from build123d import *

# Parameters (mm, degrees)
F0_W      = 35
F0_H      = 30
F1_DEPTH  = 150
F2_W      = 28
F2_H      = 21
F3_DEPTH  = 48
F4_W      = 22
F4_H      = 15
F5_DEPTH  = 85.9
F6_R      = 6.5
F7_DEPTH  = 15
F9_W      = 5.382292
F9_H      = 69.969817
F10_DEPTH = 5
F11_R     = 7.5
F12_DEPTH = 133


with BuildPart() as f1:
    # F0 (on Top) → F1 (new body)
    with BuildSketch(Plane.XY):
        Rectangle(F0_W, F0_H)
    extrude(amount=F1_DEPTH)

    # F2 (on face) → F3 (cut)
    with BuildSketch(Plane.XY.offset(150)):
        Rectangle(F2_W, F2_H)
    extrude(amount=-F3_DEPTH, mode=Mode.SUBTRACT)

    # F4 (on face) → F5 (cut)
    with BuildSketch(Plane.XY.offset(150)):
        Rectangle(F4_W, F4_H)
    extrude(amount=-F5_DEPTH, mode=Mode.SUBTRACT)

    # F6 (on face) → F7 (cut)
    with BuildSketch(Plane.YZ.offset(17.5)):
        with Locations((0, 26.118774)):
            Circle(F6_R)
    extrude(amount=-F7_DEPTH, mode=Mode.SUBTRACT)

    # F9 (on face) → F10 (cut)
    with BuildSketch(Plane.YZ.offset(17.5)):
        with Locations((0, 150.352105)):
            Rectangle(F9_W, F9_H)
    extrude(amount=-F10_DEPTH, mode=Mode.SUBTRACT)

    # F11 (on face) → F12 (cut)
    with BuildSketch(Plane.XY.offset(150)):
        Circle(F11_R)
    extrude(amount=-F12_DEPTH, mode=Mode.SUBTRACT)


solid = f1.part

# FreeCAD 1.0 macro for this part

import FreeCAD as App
import Part
import Sketcher
Q = App.Units.Quantity


def add_polygon(sketch, points):
    """Adds a closed chain of lines whose ends are joined by coincident constraints."""
    first, n = sketch.GeometryCount, len(points)
    for a, b in zip(points, points[1:] + points[:1]):
        sketch.addGeometry(Part.LineSegment(App.Vector(*a, 0), App.Vector(*b, 0)), False)
    for i in range(n):
        sketch.addConstraint(Sketcher.Constraint("Coincident", first + i, 2, first + (i + 1) % n, 1))

doc = App.newDocument("Part")
body = doc.addObject("PartDesign::Body", "Body")

sketch1 = doc.addObject("Sketcher::SketchObject", "Sketch")
body.addObject(sketch1)
sketch1.AttachmentSupport = (doc.XY_Plane, [""])
sketch1.MapMode = "FlatFace"
add_polygon(sketch1, [(-18, 15), (-18, -15), (18, -15), (18, 15)])
sketch1.addConstraint([
    Sketcher.Constraint("Vertical", 0),
    Sketcher.Constraint("Horizontal", 1),
    Sketcher.Constraint("Vertical", 2),
    Sketcher.Constraint("Horizontal", 3),
    Sketcher.Constraint("Symmetric", 0, 2, 2, 2, -1, 1),
    Sketcher.Constraint("DistanceX", 1, 1, 1, 2, Q("35 mm")),
    Sketcher.Constraint("DistanceY", 0, 2, 0, 1, Q("30 mm")),
])
pad1 = doc.addObject("PartDesign::Pad", "Pad")
body.addObject(pad1)
pad1.Profile = sketch1
pad1.Length = 150

sketch2 = doc.addObject("Sketcher::SketchObject", "Sketch001")
body.addObject(sketch2)
sketch2.AttachmentSupport = (doc.XY_Plane, [""])
sketch2.MapMode = "FlatFace"
sketch2.AttachmentOffset = App.Placement(App.Vector(0, 0, 150), App.Rotation())
add_polygon(sketch2, [(-14, 10), (-14, -10), (14, -10), (14, 10)])
sketch2.addConstraint([
    Sketcher.Constraint("Vertical", 0),
    Sketcher.Constraint("Horizontal", 1),
    Sketcher.Constraint("Vertical", 2),
    Sketcher.Constraint("Horizontal", 3),
    Sketcher.Constraint("Symmetric", 0, 2, 2, 2, -1, 1),
    Sketcher.Constraint("DistanceX", 1, 1, 1, 2, Q("28 mm")),
    Sketcher.Constraint("DistanceY", 0, 2, 0, 1, Q("21 mm")),
])
pocket1 = doc.addObject("PartDesign::Pocket", "Pocket")
body.addObject(pocket1)
pocket1.Profile = sketch2
pocket1.Length = 48

sketch3 = doc.addObject("Sketcher::SketchObject", "Sketch002")
body.addObject(sketch3)
sketch3.AttachmentSupport = (doc.XY_Plane, [""])
sketch3.MapMode = "FlatFace"
sketch3.AttachmentOffset = App.Placement(App.Vector(0, 0, 150), App.Rotation())
add_polygon(sketch3, [(-11, 8), (-11, -8), (11, -8), (11, 8)])
sketch3.addConstraint([
    Sketcher.Constraint("Vertical", 0),
    Sketcher.Constraint("Horizontal", 1),
    Sketcher.Constraint("Vertical", 2),
    Sketcher.Constraint("Horizontal", 3),
    Sketcher.Constraint("Symmetric", 0, 2, 2, 2, -1, 1),
    Sketcher.Constraint("DistanceX", 1, 1, 1, 2, Q("22 mm")),
    Sketcher.Constraint("DistanceY", 0, 2, 0, 1, Q("15 mm")),
])
pocket2 = doc.addObject("PartDesign::Pocket", "Pocket001")
body.addObject(pocket2)
pocket2.Profile = sketch3
pocket2.Length = 85.9

sketch4 = doc.addObject("Sketcher::SketchObject", "Sketch003")
body.addObject(sketch4)
sketch4.AttachmentSupport = (doc.YZ_Plane, [""])
sketch4.MapMode = "FlatFace"
sketch4.AttachmentOffset = App.Placement(App.Vector(0, 0, 17.5), App.Rotation())
sketch4.addGeometry(Part.Circle(App.Vector(0, 26, 0), App.Vector(0, 0, 1), 6), False)
sketch4.addConstraint([
    Sketcher.Constraint("PointOnObject", 0, 3, -2),
    Sketcher.Constraint("Diameter", 0, Q("13 mm")),
    Sketcher.Constraint("DistanceY", -1, 1, 0, 3, Q("26.118774 mm")),
])
pocket3 = doc.addObject("PartDesign::Pocket", "Pocket002")
body.addObject(pocket3)
pocket3.Profile = sketch4
pocket3.Length = 15

sketch5 = doc.addObject("Sketcher::SketchObject", "Sketch004")
body.addObject(sketch5)
sketch5.AttachmentSupport = (doc.YZ_Plane, [""])
sketch5.MapMode = "FlatFace"
sketch5.AttachmentOffset = App.Placement(App.Vector(0, 0, 17.5), App.Rotation())
add_polygon(sketch5, [(-3, 185), (-3, 115), (3, 115), (3, 185)])
sketch5.addConstraint([
    Sketcher.Constraint("Vertical", 0),
    Sketcher.Constraint("Horizontal", 1),
    Sketcher.Constraint("Vertical", 2),
    Sketcher.Constraint("Horizontal", 3),
    Sketcher.Constraint("DistanceX", 1, 1, 1, 2, Q("5.382292 mm")),
    Sketcher.Constraint("DistanceY", 0, 2, 0, 1, Q("69.969817 mm")),
    Sketcher.Constraint("DistanceX", 0, 2, -1, 1, Q("2.691146 mm")),
    Sketcher.Constraint("DistanceY", -1, 1, 0, 2, Q("115.367197 mm")),
])
pocket4 = doc.addObject("PartDesign::Pocket", "Pocket003")
body.addObject(pocket4)
pocket4.Profile = sketch5
pocket4.Length = 5

sketch6 = doc.addObject("Sketcher::SketchObject", "Sketch005")
body.addObject(sketch6)
sketch6.AttachmentSupport = (doc.XY_Plane, [""])
sketch6.MapMode = "FlatFace"
sketch6.AttachmentOffset = App.Placement(App.Vector(0, 0, 150), App.Rotation())
sketch6.addGeometry(Part.Circle(App.Vector(0, 0, 0), App.Vector(0, 0, 1), 8), False)
sketch6.addConstraint([
    Sketcher.Constraint("Coincident", 0, 3, -1, 1),
    Sketcher.Constraint("Diameter", 0, Q("15 mm")),
])
pocket5 = doc.addObject("PartDesign::Pocket", "Pocket004")
body.addObject(pocket5)
pocket5.Profile = sketch6
pocket5.Length = 133

doc.recompute()
